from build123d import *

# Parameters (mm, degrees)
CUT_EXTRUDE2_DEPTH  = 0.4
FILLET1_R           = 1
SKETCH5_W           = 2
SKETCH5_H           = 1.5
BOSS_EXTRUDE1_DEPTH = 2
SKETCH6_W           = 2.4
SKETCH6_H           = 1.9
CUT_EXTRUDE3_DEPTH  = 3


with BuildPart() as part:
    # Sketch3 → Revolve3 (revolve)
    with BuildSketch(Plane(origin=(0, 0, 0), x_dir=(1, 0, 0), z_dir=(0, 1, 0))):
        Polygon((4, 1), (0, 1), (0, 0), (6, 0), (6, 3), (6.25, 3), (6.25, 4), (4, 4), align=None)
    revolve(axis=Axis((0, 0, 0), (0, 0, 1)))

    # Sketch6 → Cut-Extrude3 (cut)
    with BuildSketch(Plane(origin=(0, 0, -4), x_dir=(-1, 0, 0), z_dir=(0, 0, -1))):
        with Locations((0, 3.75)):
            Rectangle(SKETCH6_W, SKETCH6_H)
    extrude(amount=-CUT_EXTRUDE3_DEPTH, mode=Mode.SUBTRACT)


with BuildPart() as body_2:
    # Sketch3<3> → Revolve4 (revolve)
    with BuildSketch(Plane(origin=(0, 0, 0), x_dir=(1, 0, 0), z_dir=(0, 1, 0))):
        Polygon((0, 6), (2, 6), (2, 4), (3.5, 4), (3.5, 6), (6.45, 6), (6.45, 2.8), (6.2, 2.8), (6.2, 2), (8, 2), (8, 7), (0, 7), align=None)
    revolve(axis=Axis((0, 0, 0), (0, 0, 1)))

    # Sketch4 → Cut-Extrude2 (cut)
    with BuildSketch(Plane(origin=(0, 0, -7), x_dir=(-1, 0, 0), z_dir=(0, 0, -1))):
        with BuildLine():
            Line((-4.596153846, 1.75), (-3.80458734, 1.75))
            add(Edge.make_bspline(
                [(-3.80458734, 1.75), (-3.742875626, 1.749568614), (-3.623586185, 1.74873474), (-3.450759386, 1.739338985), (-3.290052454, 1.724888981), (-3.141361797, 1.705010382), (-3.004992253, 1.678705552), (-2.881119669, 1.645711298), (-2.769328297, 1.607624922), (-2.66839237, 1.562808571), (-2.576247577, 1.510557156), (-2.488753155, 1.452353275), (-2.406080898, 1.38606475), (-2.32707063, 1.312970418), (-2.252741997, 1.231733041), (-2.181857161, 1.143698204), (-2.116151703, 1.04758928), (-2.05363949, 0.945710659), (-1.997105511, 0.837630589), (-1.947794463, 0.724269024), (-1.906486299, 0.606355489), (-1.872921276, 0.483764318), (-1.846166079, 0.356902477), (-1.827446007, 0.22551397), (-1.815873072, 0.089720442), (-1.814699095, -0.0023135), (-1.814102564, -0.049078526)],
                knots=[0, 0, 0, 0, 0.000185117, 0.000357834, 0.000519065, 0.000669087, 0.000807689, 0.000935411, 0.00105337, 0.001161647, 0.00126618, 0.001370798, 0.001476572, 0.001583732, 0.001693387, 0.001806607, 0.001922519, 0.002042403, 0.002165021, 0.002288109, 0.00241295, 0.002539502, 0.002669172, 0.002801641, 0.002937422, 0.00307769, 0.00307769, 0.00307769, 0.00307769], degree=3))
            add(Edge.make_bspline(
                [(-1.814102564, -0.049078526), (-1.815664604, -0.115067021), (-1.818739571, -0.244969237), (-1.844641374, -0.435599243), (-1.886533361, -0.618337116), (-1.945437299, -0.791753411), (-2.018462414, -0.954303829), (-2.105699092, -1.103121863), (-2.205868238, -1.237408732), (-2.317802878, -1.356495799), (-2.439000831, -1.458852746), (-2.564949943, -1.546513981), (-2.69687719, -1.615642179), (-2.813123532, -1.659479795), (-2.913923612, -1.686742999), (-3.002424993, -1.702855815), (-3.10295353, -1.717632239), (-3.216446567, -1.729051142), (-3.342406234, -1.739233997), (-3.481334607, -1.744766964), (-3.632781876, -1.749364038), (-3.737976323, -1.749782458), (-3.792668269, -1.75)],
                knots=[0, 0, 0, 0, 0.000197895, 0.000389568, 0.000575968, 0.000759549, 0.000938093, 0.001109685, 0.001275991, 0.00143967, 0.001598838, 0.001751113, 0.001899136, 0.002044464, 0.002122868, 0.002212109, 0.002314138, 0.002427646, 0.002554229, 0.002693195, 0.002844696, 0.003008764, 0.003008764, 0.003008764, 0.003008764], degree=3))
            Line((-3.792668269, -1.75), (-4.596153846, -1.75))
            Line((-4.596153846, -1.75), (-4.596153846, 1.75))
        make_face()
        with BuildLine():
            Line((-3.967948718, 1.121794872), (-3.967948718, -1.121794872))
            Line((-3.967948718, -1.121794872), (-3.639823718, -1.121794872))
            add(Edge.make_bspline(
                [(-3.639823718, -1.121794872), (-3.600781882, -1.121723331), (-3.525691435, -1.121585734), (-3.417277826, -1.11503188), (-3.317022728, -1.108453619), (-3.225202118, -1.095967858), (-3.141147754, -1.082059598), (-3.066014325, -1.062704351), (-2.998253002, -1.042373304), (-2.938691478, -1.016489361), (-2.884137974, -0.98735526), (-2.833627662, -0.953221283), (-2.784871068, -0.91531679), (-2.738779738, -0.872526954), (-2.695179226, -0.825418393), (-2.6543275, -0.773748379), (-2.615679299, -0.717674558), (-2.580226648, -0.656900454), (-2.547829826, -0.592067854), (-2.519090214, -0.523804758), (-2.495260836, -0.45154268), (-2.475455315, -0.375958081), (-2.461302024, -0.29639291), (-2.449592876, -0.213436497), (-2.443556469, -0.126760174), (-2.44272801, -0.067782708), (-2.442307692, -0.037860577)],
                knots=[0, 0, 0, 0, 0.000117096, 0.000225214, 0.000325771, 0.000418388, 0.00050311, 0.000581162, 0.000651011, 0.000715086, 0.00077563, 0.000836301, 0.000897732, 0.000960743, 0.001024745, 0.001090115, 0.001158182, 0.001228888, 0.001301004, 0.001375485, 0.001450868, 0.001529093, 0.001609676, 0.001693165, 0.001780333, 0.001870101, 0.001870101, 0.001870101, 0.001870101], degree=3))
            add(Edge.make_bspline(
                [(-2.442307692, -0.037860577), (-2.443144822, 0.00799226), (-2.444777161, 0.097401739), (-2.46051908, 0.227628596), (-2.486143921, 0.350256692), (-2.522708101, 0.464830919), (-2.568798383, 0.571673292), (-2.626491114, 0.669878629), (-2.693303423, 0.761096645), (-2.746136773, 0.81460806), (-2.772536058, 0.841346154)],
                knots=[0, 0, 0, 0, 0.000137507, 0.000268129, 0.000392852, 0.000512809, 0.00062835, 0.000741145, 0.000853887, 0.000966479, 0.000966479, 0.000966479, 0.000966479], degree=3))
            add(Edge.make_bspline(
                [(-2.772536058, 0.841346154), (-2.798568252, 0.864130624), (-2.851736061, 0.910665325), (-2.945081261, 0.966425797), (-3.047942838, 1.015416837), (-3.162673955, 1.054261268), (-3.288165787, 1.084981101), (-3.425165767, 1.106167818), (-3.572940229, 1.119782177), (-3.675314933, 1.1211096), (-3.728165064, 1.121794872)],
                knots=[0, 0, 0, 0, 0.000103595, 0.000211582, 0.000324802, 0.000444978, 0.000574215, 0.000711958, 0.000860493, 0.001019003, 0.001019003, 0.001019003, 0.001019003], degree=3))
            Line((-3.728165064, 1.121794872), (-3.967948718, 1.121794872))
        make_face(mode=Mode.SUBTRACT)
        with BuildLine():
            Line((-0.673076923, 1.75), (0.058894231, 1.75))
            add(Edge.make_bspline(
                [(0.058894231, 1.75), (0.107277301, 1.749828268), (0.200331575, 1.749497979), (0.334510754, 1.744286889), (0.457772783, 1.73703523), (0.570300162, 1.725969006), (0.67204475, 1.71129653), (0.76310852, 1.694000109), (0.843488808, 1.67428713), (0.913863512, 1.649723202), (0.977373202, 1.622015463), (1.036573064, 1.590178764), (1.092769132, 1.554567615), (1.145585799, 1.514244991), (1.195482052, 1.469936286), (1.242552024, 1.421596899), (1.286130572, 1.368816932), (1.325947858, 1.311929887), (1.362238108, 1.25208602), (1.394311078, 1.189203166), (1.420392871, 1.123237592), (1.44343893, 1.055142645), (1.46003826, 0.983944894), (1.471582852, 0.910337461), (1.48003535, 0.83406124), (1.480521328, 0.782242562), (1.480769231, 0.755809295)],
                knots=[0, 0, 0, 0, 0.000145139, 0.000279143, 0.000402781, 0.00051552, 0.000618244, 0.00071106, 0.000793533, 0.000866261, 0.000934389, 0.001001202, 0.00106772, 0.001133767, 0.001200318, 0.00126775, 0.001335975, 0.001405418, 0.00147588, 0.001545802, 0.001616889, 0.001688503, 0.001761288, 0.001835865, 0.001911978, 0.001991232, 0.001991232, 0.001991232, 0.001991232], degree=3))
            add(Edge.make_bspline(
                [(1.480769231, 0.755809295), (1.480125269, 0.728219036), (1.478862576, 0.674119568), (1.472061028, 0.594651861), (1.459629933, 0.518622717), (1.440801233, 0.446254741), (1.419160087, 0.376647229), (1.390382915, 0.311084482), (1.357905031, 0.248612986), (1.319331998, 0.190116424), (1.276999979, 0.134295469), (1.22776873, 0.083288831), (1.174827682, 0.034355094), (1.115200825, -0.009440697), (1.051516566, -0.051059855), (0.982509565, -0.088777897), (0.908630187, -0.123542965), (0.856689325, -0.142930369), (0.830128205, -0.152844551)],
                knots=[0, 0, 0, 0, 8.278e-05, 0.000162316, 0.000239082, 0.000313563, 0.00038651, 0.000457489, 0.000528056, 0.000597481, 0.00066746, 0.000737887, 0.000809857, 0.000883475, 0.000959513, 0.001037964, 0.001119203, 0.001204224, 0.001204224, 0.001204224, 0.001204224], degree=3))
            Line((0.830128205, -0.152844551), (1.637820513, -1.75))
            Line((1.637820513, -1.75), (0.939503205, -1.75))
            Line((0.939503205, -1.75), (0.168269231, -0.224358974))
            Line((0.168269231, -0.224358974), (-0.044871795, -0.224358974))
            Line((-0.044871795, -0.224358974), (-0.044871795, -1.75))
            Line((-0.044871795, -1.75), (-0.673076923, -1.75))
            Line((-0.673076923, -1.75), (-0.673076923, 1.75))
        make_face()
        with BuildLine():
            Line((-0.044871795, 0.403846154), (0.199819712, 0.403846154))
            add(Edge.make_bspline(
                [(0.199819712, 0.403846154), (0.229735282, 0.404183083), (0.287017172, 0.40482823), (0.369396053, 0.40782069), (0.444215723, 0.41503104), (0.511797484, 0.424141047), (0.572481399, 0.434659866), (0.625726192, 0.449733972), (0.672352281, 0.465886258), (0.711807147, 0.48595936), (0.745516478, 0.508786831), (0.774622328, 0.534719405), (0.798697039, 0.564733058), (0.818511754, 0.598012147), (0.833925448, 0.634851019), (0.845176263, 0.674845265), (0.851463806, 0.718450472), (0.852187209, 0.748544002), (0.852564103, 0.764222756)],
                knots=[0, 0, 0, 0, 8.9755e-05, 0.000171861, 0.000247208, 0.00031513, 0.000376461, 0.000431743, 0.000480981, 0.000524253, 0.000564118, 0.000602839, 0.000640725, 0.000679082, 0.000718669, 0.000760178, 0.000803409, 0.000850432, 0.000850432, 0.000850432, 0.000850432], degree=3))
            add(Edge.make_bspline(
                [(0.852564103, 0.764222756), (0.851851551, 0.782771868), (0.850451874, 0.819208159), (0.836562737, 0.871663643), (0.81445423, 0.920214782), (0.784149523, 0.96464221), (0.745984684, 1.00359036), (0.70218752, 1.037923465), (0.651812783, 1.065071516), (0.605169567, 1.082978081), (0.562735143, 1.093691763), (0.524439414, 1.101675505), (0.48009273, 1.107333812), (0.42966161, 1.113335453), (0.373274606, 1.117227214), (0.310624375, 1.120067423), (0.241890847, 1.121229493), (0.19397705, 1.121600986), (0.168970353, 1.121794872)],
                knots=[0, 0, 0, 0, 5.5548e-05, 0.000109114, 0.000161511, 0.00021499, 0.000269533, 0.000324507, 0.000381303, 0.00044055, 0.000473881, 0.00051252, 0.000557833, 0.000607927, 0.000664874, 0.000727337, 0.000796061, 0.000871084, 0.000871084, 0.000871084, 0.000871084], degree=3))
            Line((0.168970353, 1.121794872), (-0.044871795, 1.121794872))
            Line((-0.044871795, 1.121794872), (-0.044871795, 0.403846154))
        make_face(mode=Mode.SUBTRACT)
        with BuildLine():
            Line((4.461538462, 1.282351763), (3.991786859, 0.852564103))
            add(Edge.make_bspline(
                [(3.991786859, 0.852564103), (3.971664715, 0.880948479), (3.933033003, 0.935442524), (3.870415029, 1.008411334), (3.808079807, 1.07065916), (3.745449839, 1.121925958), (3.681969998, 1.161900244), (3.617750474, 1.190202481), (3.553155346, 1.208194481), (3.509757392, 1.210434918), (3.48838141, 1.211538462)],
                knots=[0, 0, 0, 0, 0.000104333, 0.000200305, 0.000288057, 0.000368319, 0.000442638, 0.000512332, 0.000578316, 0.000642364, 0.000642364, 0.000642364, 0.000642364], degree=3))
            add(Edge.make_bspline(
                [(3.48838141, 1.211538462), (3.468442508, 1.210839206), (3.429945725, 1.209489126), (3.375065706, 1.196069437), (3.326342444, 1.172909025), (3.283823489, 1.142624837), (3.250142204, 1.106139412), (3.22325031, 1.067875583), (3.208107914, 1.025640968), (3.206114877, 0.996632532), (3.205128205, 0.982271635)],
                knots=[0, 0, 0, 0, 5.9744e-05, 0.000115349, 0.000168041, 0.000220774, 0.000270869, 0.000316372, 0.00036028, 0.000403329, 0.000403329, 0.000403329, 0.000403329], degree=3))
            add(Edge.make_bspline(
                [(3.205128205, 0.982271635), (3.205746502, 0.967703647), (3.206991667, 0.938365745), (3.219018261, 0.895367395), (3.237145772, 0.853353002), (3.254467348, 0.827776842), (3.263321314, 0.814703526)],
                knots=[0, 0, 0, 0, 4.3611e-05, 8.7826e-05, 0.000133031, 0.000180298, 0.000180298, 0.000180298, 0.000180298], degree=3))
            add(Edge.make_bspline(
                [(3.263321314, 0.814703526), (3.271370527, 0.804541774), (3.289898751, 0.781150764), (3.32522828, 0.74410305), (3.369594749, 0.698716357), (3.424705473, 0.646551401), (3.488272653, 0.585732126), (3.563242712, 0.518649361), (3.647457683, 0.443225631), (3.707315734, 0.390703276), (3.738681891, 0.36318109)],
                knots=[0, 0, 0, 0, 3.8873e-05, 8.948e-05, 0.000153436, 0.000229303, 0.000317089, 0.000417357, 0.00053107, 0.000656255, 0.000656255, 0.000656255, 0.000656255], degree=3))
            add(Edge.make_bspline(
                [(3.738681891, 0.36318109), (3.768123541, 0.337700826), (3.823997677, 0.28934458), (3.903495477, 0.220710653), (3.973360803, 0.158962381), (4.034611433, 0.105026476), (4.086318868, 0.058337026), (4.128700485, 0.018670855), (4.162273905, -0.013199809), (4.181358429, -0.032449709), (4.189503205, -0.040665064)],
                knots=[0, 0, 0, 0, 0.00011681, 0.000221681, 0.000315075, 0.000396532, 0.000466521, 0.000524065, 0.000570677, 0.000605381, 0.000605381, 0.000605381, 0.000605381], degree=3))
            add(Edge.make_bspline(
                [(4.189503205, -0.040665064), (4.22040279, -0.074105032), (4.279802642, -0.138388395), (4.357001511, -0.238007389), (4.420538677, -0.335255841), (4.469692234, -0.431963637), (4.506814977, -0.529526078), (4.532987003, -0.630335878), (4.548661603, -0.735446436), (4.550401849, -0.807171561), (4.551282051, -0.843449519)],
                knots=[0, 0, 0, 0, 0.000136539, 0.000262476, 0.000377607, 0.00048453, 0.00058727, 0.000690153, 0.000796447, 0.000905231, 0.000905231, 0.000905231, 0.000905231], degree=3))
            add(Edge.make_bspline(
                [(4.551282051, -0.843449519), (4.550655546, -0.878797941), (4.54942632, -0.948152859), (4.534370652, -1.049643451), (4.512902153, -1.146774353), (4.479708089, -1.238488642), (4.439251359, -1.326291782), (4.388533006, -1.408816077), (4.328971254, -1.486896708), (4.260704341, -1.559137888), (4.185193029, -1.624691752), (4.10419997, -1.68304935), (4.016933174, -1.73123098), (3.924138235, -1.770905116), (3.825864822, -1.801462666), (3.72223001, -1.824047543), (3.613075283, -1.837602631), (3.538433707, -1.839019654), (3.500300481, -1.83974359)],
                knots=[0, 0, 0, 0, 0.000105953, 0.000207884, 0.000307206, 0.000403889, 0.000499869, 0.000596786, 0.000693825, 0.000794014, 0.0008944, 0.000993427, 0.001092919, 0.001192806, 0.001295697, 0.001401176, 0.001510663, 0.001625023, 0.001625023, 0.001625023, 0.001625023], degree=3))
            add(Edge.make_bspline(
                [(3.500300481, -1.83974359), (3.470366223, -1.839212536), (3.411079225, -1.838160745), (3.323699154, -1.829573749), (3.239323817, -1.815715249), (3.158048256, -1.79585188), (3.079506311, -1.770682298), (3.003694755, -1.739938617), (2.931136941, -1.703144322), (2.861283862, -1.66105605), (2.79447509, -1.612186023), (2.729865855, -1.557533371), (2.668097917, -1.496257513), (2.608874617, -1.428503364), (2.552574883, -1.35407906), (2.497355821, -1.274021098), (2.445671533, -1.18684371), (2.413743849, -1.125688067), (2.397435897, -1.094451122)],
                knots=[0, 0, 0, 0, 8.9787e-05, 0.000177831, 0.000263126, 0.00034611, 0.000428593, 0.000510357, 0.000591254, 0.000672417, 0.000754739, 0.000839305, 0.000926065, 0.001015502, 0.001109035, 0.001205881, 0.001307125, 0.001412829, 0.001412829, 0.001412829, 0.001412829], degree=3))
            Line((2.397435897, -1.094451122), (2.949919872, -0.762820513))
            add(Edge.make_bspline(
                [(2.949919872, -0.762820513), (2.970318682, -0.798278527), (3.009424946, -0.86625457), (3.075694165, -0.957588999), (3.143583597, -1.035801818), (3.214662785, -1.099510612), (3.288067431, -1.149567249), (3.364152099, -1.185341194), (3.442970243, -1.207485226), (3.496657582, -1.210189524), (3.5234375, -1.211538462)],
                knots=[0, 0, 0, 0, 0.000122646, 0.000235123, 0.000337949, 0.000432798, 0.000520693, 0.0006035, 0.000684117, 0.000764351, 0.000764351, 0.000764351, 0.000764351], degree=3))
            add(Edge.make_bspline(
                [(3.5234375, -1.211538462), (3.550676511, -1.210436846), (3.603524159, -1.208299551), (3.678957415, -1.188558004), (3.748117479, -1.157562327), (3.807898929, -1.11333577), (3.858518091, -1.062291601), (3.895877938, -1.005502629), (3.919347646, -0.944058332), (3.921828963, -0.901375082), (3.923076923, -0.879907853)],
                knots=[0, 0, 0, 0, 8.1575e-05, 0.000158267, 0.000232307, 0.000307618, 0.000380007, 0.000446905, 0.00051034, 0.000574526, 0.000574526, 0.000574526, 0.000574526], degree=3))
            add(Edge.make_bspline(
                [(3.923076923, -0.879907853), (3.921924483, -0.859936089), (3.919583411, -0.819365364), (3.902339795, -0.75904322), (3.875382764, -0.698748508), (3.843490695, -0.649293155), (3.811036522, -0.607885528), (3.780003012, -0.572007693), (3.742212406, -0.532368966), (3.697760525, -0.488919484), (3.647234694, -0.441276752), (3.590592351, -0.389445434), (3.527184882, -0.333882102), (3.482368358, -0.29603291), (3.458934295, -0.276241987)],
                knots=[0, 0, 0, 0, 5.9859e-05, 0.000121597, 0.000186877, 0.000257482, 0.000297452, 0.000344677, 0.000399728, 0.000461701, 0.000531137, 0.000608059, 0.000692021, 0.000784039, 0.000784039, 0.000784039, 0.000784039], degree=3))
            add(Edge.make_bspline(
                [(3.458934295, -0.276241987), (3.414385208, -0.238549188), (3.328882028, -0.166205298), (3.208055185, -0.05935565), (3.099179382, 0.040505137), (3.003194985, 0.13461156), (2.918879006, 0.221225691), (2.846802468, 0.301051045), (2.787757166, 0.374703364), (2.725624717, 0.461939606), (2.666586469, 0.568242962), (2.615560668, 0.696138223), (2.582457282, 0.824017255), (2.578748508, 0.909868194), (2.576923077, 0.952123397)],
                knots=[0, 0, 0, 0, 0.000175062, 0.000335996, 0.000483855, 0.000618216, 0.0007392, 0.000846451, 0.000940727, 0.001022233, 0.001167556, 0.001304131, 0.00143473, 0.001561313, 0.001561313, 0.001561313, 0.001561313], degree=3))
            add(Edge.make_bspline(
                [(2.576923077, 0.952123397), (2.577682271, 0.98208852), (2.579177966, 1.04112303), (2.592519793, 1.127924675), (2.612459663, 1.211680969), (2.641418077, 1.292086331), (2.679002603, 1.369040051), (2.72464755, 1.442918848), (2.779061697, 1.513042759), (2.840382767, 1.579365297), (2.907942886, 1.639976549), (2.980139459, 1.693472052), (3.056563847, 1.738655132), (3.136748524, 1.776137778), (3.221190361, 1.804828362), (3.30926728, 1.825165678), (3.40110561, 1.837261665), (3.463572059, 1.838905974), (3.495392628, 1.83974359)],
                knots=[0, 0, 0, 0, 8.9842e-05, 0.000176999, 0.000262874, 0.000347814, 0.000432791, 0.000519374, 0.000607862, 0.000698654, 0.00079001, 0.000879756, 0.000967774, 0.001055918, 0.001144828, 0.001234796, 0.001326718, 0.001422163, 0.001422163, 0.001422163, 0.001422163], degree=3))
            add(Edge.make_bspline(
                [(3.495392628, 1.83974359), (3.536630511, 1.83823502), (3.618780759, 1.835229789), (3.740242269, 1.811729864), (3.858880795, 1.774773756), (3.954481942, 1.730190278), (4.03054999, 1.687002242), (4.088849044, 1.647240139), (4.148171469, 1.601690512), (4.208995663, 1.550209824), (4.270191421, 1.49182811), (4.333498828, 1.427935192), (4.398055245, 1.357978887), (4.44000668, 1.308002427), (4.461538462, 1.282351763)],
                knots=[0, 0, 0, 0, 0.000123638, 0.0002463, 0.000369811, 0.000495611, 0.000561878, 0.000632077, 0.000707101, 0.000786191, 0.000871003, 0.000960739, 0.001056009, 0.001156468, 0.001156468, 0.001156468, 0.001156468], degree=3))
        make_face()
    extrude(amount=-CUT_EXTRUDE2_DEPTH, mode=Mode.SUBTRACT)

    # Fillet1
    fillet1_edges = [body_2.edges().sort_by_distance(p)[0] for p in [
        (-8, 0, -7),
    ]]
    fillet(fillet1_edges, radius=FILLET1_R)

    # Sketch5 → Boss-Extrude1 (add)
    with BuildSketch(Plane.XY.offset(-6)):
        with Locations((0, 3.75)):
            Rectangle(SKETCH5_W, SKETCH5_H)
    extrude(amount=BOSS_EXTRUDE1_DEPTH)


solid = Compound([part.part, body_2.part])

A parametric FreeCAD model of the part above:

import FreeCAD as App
import Part
import Sketcher

V = App.Vector
Q = App.Units.Quantity


def edges_at(feature, points):
    """Names of the edges that pass closest to the given points."""
    edges = feature.Shape.Edges
    near = lambda p: min(range(len(edges)), key=lambda i: edges[i].distToShape(Part.Vertex(*p))[0])
    return sorted({f"Edge{near(p) + 1}" for p in points})

doc = App.newDocument("Part")
body = doc.addObject("PartDesign::Body", "Body")

sketch1 = body.newObject("Sketcher::SketchObject", "Sketch")
sketch1.AttachmentSupport = (doc.getObject("XZ_Plane"), [""])
sketch1.MapMode = "FlatFace"
sketch1.addGeometry([
    Part.LineSegment(V(4, -1, 0), V(0, -1, 0)),
    Part.LineSegment(V(0, -1, 0), V(0, 0, 0)),
    Part.LineSegment(V(0, 0, 0), V(6, 0, 0)),
    Part.LineSegment(V(6, 0, 0), V(6, -3, 0)),
    Part.LineSegment(V(6, -3, 0), V(6.25, -3, 0)),
    Part.LineSegment(V(6.25, -3, 0), V(6.25, -4, 0)),
    Part.LineSegment(V(6.25, -4, 0), V(4, -4, 0)),
    Part.LineSegment(V(4, -4, 0), V(4, -1, 0)),
], False)
sketch1.addConstraint([
    Sketcher.Constraint("Coincident", 0, 2, 1, 1),
    Sketcher.Constraint("Coincident", 1, 2, 2, 1),
    Sketcher.Constraint("Coincident", 2, 2, 3, 1),
    Sketcher.Constraint("Coincident", 3, 2, 4, 1),
    Sketcher.Constraint("Coincident", 4, 2, 5, 1),
    Sketcher.Constraint("Coincident", 5, 2, 6, 1),
    Sketcher.Constraint("Coincident", 6, 2, 7, 1),
    Sketcher.Constraint("Coincident", 7, 2, 0, 1),
    Sketcher.Constraint("Horizontal", 0),
    Sketcher.Constraint("Vertical", 1),
    Sketcher.Constraint("Horizontal", 2),
    Sketcher.Constraint("Vertical", 3),
    Sketcher.Constraint("Horizontal", 4),
    Sketcher.Constraint("Vertical", 5),
    Sketcher.Constraint("Horizontal", 6),
    Sketcher.Constraint("Vertical", 7),
    Sketcher.Constraint("Coincident", 1, 2, -1, 1),
    Sketcher.Constraint("Equal", 1, 5),
    Sketcher.Constraint("DistanceX", 0, 2, 0, 1, Q("4 mm")),
    Sketcher.Constraint("DistanceX", 2, 1, 2, 2, Q("6 mm")),
    Sketcher.Constraint("DistanceY", 1, 1, 1, 2, Q("1 mm")),
    Sketcher.Constraint("DistanceY", 3, 2, 3, 1, Q("3 mm")),
    Sketcher.Constraint("DistanceX", 4, 1, 4, 2, Q("0.25 mm")),
])
revolution = body.newObject("PartDesign::Revolution", "Revolution")
revolution.Profile = sketch1
revolution.ReferenceAxis = (sketch1, ["V_Axis"])
revolution.Angle = 360

sketch2 = body.newObject("Sketcher::SketchObject", "Sketch001")
sketch2.AttachmentSupport = (doc.getObject("XY_Plane"), [""])
sketch2.MapMode = "FlatFace"
sketch2.AttachmentOffset = App.Placement(V(0, 0, -4), App.Rotation())
sketch2.addGeometry([
    Part.LineSegment(V(1.2, 4.7, 0), V(1.2, 2.8, 0)),
    Part.LineSegment(V(1.2, 2.8, 0), V(-1.2, 2.8, 0)),
    Part.LineSegment(V(-1.2, 2.8, 0), V(-1.2, 4.7, 0)),
    Part.LineSegment(V(-1.2, 4.7, 0), V(1.2, 4.7, 0)),
], False)
sketch2.addConstraint([
    Sketcher.Constraint("Coincident", 0, 2, 1, 1),
    Sketcher.Constraint("Coincident", 1, 2, 2, 1),
    Sketcher.Constraint("Coincident", 2, 2, 3, 1),
    Sketcher.Constraint("Coincident", 3, 2, 0, 1),
    Sketcher.Constraint("Vertical", 0),
    Sketcher.Constraint("Horizontal", 1),
    Sketcher.Constraint("Vertical", 2),
    Sketcher.Constraint("Horizontal", 3),
    Sketcher.Constraint("DistanceX", 1, 2, 1, 1, Q("2.4 mm")),
    Sketcher.Constraint("DistanceY", 0, 2, 0, 1, Q("1.9 mm")),
    Sketcher.Constraint("DistanceX", -1, 1, 0, 2, Q("1.2 mm")),
    Sketcher.Constraint("DistanceY", -1, 1, 0, 2, Q("2.8 mm")),
])
pocket1 = body.newObject("PartDesign::Pocket", "Pocket")
pocket1.Profile = sketch2
pocket1.Length = 3
pocket1.Reversed = True
body2 = doc.addObject("PartDesign::Body", "Body001")

sketch3 = body2.newObject("Sketcher::SketchObject", "Sketch002")
sketch3.AttachmentSupport = (doc.getObject("XZ_Plane001"), [""])
sketch3.MapMode = "FlatFace"
sketch3.addGeometry([
    Part.LineSegment(V(0, -6, 0), V(2, -6, 0)),
    Part.LineSegment(V(2, -6, 0), V(2, -4, 0)),
    Part.LineSegment(V(2, -4, 0), V(3.5, -4, 0)),
    Part.LineSegment(V(3.5, -4, 0), V(3.5, -6, 0)),
    Part.LineSegment(V(3.5, -6, 0), V(6.45, -6, 0)),
    Part.LineSegment(V(6.45, -6, 0), V(6.45, -2.8, 0)),
    Part.LineSegment(V(6.45, -2.8, 0), V(6.2, -2.8, 0)),
    Part.LineSegment(V(6.2, -2.8, 0), V(6.2, -2, 0)),
    Part.LineSegment(V(6.2, -2, 0), V(8, -2, 0)),
    Part.LineSegment(V(8, -2, 0), V(8, -7, 0)),
    Part.LineSegment(V(8, -7, 0), V(0, -7, 0)),
    Part.LineSegment(V(0, -7, 0), V(0, -6, 0)),
], False)
sketch3.addConstraint([
    Sketcher.Constraint("Coincident", 0, 2, 1, 1),
    Sketcher.Constraint("Coincident", 1, 2, 2, 1),
    Sketcher.Constraint("Coincident", 2, 2, 3, 1),
    Sketcher.Constraint("Coincident", 3, 2, 4, 1),
    Sketcher.Constraint("Coincident", 4, 2, 5, 1),
    Sketcher.Constraint("Coincident", 5, 2, 6, 1),
    Sketcher.Constraint("Coincident", 6, 2, 7, 1),
    Sketcher.Constraint("Coincident", 7, 2, 8, 1),
    Sketcher.Constraint("Coincident", 8, 2, 9, 1),
    Sketcher.Constraint("Coincident", 9, 2, 10, 1),
    Sketcher.Constraint("Coincident", 10, 2, 11, 1),
    Sketcher.Constraint("Coincident", 11, 2, 0, 1),
    Sketcher.Constraint("Horizontal", 0),
    Sketcher.Constraint("Vertical", 1),
    Sketcher.Constraint("Horizontal", 2),
    Sketcher.Constraint("Vertical", 3),
    Sketcher.Constraint("Horizontal", 4),
    Sketcher.Constraint("Vertical", 5),
    Sketcher.Constraint("Horizontal", 6),
    Sketcher.Constraint("Vertical", 7),
    Sketcher.Constraint("Horizontal", 8),
    Sketcher.Constraint("Vertical", 9),
    Sketcher.Constraint("Horizontal", 10),
    Sketcher.Constraint("Vertical", 11),
    Sketcher.Constraint("PointOnObject", 10, 2, -2),
    Sketcher.Constraint("Horizontal", 0, 2, 3, 2),
    Sketcher.Constraint("Equal", 0, 1),
    Sketcher.Constraint("DistanceX", 0, 1, 0, 2, Q("2 mm")),
    Sketcher.Constraint("DistanceX", 10, 2, 10, 1, Q("8 mm")),
    Sketcher.Constraint("DistanceY", 9, 2, 9, 1, Q("5 mm")),
    Sketcher.Constraint("DistanceY", 11, 1, 11, 2, Q("1 mm")),
    Sketcher.Constraint("DistanceX", 2, 1, 2, 2, Q("1.5 mm")),
    Sketcher.Constraint("DistanceX", 8, 1, 8, 2, Q("1.8 mm")),
    Sketcher.Constraint("DistanceY", 5, 1, 5, 2, Q("3.2 mm")),
    Sketcher.Constraint("DistanceY", 0, 2, -1, 1, Q("6 mm")),
    Sketcher.Constraint("DistanceX", 4, 1, 4, 2, Q("2.95 mm")),
])
revolution2 = body2.newObject("PartDesign::Revolution", "Revolution001")
revolution2.Profile = sketch3
revolution2.ReferenceAxis = (sketch3, ["V_Axis"])
revolution2.Angle = 360

sketch4 = body2.newObject("Sketcher::SketchObject", "Sketch003")
sketch4.AttachmentSupport = (doc.getObject("XY_Plane001"), [""])
sketch4.MapMode = "FlatFace"
sketch4.AttachmentOffset = App.Placement(V(0, 0, -7), App.Rotation())
sketch4.addGeometry([
    Part.LineSegment(V(3.804587, 1.75, 0), V(4.596154, 1.75, 0)),
    Part.LineSegment(V(4.596154, 1.75, 0), V(4.596154, -1.75, 0)),
    Part.LineSegment(V(4.596154, -1.75, 0), V(3.792668, -1.75, 0)),
    Part.BSplineCurve([V(1.814103, -0.049079, 0), V(1.815665, -0.115067, 0), V(1.81874, -0.244969, 0), V(1.844641, -0.435599, 0), V(1.886533, -0.618337, 0), V(1.945437, -0.791753, 0), V(2.018462, -0.954304, 0), V(2.105699, -1.103122, 0), V(2.205868, -1.237409, 0), V(2.317803, -1.356496, 0), V(2.439001, -1.458853, 0), V(2.56495, -1.546514, 0), V(2.696877, -1.615642, 0), V(2.813124, -1.65948, 0), V(2.913924, -1.686743, 0), V(3.002425, -1.702856, 0), V(3.102954, -1.717632, 0), V(3.216447, -1.729051, 0), V(3.342406, -1.739234, 0), V(3.481335, -1.744767, 0), V(3.632782, -1.749364, 0), V(3.737976, -1.749782, 0), V(3.792668, -1.75, 0)], [4, 1, 1, 1, 1, 1, 1, 1, 1, 1, 1, 1, 1, 1, 1, 1, 1, 1, 1, 1, 4], [0, 0.000197895, 0.000389568, 0.000575968, 0.000759549, 0.000938093, 0.001109685, 0.001275991, 0.00143967, 0.001598838, 0.001751113, 0.001899136, 0.002044464, 0.002122868, 0.002212109, 0.002314138, 0.002427646, 0.002554229, 0.002693195, 0.002844696, 0.003008764], False, 3, [1, 1, 1, 1, 1, 1, 1, 1, 1, 1, 1, 1, 1, 1, 1, 1, 1, 1, 1, 1, 1, 1, 1], False),
    Part.BSplineCurve([V(3.804587, 1.75, 0), V(3.742876, 1.749569, 0), V(3.623586, 1.748735, 0), V(3.450759, 1.739339, 0), V(3.290052, 1.724889, 0), V(3.141362, 1.70501, 0), V(3.004992, 1.678706, 0), V(2.88112, 1.645711, 0), V(2.769328, 1.607625, 0), V(2.668392, 1.562809, 0), V(2.576248, 1.510557, 0), V(2.488753, 1.452353, 0), V(2.406081, 1.386065, 0), V(2.327071, 1.31297, 0), V(2.252742, 1.231733, 0), V(2.181857, 1.143698, 0), V(2.116152, 1.047589, 0), V(2.053639, 0.945711, 0), V(1.997106, 0.837631, 0), V(1.947794, 0.724269, 0), V(1.906486, 0.606355, 0), V(1.872921, 0.483764, 0), V(1.846166, 0.356902, 0), V(1.827446, 0.225514, 0), V(1.815873, 0.08972, 0), V(1.814699, -0.002314, 0), V(1.814103, -0.049079, 0)], [4, 1, 1, 1, 1, 1, 1, 1, 1, 1, 1, 1, 1, 1, 1, 1, 1, 1, 1, 1, 1, 1, 1, 1, 4], [0, 0.000185117, 0.000357834, 0.000519065, 0.000669087, 0.000807689, 0.000935411, 0.00105337, 0.001161647, 0.00126618, 0.001370798, 0.001476572, 0.001583732, 0.001693387, 0.001806607, 0.001922519, 0.002042403, 0.002165021, 0.002288109, 0.00241295, 0.002539502, 0.002669172, 0.002801641, 0.002937422, 0.00307769], False, 3, [1, 1, 1, 1, 1, 1, 1, 1, 1, 1, 1, 1, 1, 1, 1, 1, 1, 1, 1, 1, 1, 1, 1, 1, 1, 1, 1], False),
    Part.LineSegment(V(3.967949, 1.121795, 0), V(3.728165, 1.121795, 0)),
    Part.BSplineCurve([V(2.772536, 0.841346, 0), V(2.798568, 0.864131, 0), V(2.851736, 0.910665, 0), V(2.945081, 0.966426, 0), V(3.047943, 1.015417, 0), V(3.162674, 1.054261, 0), V(3.288166, 1.084981, 0), V(3.425166, 1.106168, 0), V(3.57294, 1.119782, 0), V(3.675315, 1.12111, 0), V(3.728165, 1.121795, 0)], [4, 1, 1, 1, 1, 1, 1, 1, 4], [0, 0.000103595, 0.000211582, 0.000324802, 0.000444978, 0.000574215, 0.000711958, 0.000860493, 0.001019003], False, 3, [1, 1, 1, 1, 1, 1, 1, 1, 1, 1, 1], False),
    Part.BSplineCurve([V(2.442308, -0.037861, 0), V(2.443145, 0.007992, 0), V(2.444777, 0.097402, 0), V(2.460519, 0.227629, 0), V(2.486144, 0.350257, 0), V(2.522708, 0.464831, 0), V(2.568798, 0.571673, 0), V(2.626491, 0.669879, 0), V(2.693303, 0.761097, 0), V(2.746137, 0.814608, 0), V(2.772536, 0.841346, 0)], [4, 1, 1, 1, 1, 1, 1, 1, 4], [0, 0.000137507, 0.000268129, 0.000392852, 0.000512809, 0.00062835, 0.000741145, 0.000853887, 0.000966479], False, 3, [1, 1, 1, 1, 1, 1, 1, 1, 1, 1, 1], False),
    Part.BSplineCurve([V(3.639824, -1.121795, 0), V(3.600782, -1.121723, 0), V(3.525691, -1.121586, 0), V(3.417278, -1.115032, 0), V(3.317023, -1.108454, 0), V(3.225202, -1.095968, 0), V(3.141148, -1.08206, 0), V(3.066014, -1.062704, 0), V(2.998253, -1.042373, 0), V(2.938691, -1.016489, 0), V(2.884138, -0.987355, 0), V(2.833628, -0.953221, 0), V(2.784871, -0.915317, 0), V(2.73878, -0.872527, 0), V(2.695179, -0.825418, 0), V(2.654327, -0.773748, 0), V(2.615679, -0.717675, 0), V(2.580227, -0.6569, 0), V(2.54783, -0.592068, 0), V(2.51909, -0.523805, 0), V(2.495261, -0.451543, 0), V(2.475455, -0.375958, 0), V(2.461302, -0.296393, 0), V(2.449593, -0.213436, 0), V(2.443556, -0.12676, 0), V(2.442728, -0.067783, 0), V(2.442308, -0.037861, 0)], [4, 1, 1, 1, 1, 1, 1, 1, 1, 1, 1, 1, 1, 1, 1, 1, 1, 1, 1, 1, 1, 1, 1, 1, 4], [0, 0.000117096, 0.000225214, 0.000325771, 0.000418388, 0.00050311, 0.000581162, 0.000651011, 0.000715086, 0.00077563, 0.000836301, 0.000897732, 0.000960743, 0.001024745, 0.001090115, 0.001158182, 0.001228888, 0.001301004, 0.001375485, 0.001450868, 0.001529093, 0.001609676, 0.001693165, 0.001780333, 0.001870101], False, 3, [1, 1, 1, 1, 1, 1, 1, 1, 1, 1, 1, 1, 1, 1, 1, 1, 1, 1, 1, 1, 1, 1, 1, 1, 1, 1, 1], False),
    Part.LineSegment(V(3.639824, -1.121795, 0), V(3.967949, -1.121795, 0)),
    Part.LineSegment(V(3.967949, -1.121795, 0), V(3.967949, 1.121795, 0)),
    Part.LineSegment(V(-0.058894, 1.75, 0), V(0.673077, 1.75, 0)),
    Part.LineSegment(V(0.673077, 1.75, 0), V(0.673077, -1.75, 0)),
    Part.LineSegment(V(0.673077, -1.75, 0), V(0.044872, -1.75, 0)),
    Part.LineSegment(V(0.044872, -1.75, 0), V(0.044872, -0.224359, 0)),
    Part.LineSegment(V(0.044872, -0.224359, 0), V(-0.168269, -0.224359, 0)),
    Part.LineSegment(V(-0.168269, -0.224359, 0), V(-0.939503, -1.75, 0)),
    Part.LineSegment(V(-0.939503, -1.75, 0), V(-1.637821, -1.75, 0)),
    Part.LineSegment(V(-1.637821, -1.75, 0), V(-0.830128, -0.152845, 0)),
    Part.BSplineCurve([V(-1.480769, 0.755809, 0), V(-1.480125, 0.728219, 0), V(-1.478863, 0.67412, 0), V(-1.472061, 0.594652, 0), V(-1.45963, 0.518623, 0), V(-1.440801, 0.446255, 0), V(-1.41916, 0.376647, 0), V(-1.390383, 0.311084, 0), V(-1.357905, 0.248613, 0), V(-1.319332, 0.190116, 0), V(-1.277, 0.134295, 0), V(-1.227769, 0.083289, 0), V(-1.174828, 0.034355, 0), V(-1.115201, -0.009441, 0), V(-1.051517, -0.05106, 0), V(-0.98251, -0.088778, 0), V(-0.90863, -0.123543, 0), V(-0.856689, -0.14293, 0), V(-0.830128, -0.152845, 0)], [4, 1, 1, 1, 1, 1, 1, 1, 1, 1, 1, 1, 1, 1, 1, 1, 4], [0, 0.00008278, 0.000162316, 0.000239082, 0.000313563, 0.00038651, 0.000457489, 0.000528056, 0.000597481, 0.00066746, 0.000737887, 0.000809857, 0.000883475, 0.000959513, 0.001037964, 0.001119203, 0.001204224], False, 3, [1, 1, 1, 1, 1, 1, 1, 1, 1, 1, 1, 1, 1, 1, 1, 1, 1, 1, 1], False),
    Part.BSplineCurve([V(-0.058894, 1.75, 0), V(-0.107277, 1.749828, 0), V(-0.200332, 1.749498, 0), V(-0.334511, 1.744287, 0), V(-0.457773, 1.737035, 0), V(-0.5703, 1.725969, 0), V(-0.672045, 1.711297, 0), V(-0.763109, 1.694, 0), V(-0.843489, 1.674287, 0), V(-0.913864, 1.649723, 0), V(-0.977373, 1.622015, 0), V(-1.036573, 1.590179, 0), V(-1.092769, 1.554568, 0), V(-1.145586, 1.514245, 0), V(-1.195482, 1.469936, 0), V(-1.242552, 1.421597, 0), V(-1.286131, 1.368817, 0), V(-1.325948, 1.31193, 0), V(-1.362238, 1.252086, 0), V(-1.394311, 1.189203, 0), V(-1.420393, 1.123238, 0), V(-1.443439, 1.055143, 0), V(-1.460038, 0.983945, 0), V(-1.471583, 0.910337, 0), V(-1.480035, 0.834061, 0), V(-1.480521, 0.782243, 0), V(-1.480769, 0.755809, 0)], [4, 1, 1, 1, 1, 1, 1, 1, 1, 1, 1, 1, 1, 1, 1, 1, 1, 1, 1, 1, 1, 1, 1, 1, 4], [0, 0.000145139, 0.000279143, 0.000402781, 0.00051552, 0.000618244, 0.00071106, 0.000793533, 0.000866261, 0.000934389, 0.001001202, 0.00106772, 0.001133767, 0.001200318, 0.00126775, 0.001335975, 0.001405418, 0.00147588, 0.001545802, 0.001616889, 0.001688503, 0.001761288, 0.001835865, 0.001911978, 0.001991232], False, 3, [1, 1, 1, 1, 1, 1, 1, 1, 1, 1, 1, 1, 1, 1, 1, 1, 1, 1, 1, 1, 1, 1, 1, 1, 1, 1, 1], False),
    Part.LineSegment(V(0.044872, 0.403846, 0), V(0.044872, 1.121795, 0)),
    Part.LineSegment(V(0.044872, 1.121795, 0), V(-0.16897, 1.121795, 0)),
    Part.BSplineCurve([V(-0.852564, 0.764223, 0), V(-0.851852, 0.782772, 0), V(-0.850452, 0.819208, 0), V(-0.836563, 0.871664, 0), V(-0.814454, 0.920215, 0), V(-0.78415, 0.964642, 0), V(-0.745985, 1.00359, 0), V(-0.702188, 1.037923, 0), V(-0.651813, 1.065072, 0), V(-0.60517, 1.082978, 0), V(-0.562735, 1.093692, 0), V(-0.524439, 1.101676, 0), V(-0.480093, 1.107334, 0), V(-0.429662, 1.113335, 0), V(-0.373275, 1.117227, 0), V(-0.310624, 1.120067, 0), V(-0.241891, 1.121229, 0), V(-0.193977, 1.121601, 0), V(-0.16897, 1.121795, 0)], [4, 1, 1, 1, 1, 1, 1, 1, 1, 1, 1, 1, 1, 1, 1, 1, 4], [0, 0.000055548, 0.000109114, 0.000161511, 0.00021499, 0.000269533, 0.000324507, 0.000381303, 0.00044055, 0.000473881, 0.00051252, 0.000557833, 0.000607927, 0.000664874, 0.000727337, 0.000796061, 0.000871084], False, 3, [1, 1, 1, 1, 1, 1, 1, 1, 1, 1, 1, 1, 1, 1, 1, 1, 1, 1, 1], False),
    Part.BSplineCurve([V(-0.19982, 0.403846, 0), V(-0.229735, 0.404183, 0), V(-0.287017, 0.404828, 0), V(-0.369396, 0.407821, 0), V(-0.444216, 0.415031, 0), V(-0.511797, 0.424141, 0), V(-0.572481, 0.43466, 0), V(-0.625726, 0.449734, 0), V(-0.672352, 0.465886, 0), V(-0.711807, 0.485959, 0), V(-0.745516, 0.508787, 0), V(-0.774622, 0.534719, 0), V(-0.798697, 0.564733, 0), V(-0.818512, 0.598012, 0), V(-0.833925, 0.634851, 0), V(-0.845176, 0.674845, 0), V(-0.851464, 0.71845, 0), V(-0.852187, 0.748544, 0), V(-0.852564, 0.764223, 0)], [4, 1, 1, 1, 1, 1, 1, 1, 1, 1, 1, 1, 1, 1, 1, 1, 4], [0, 0.000089755, 0.000171861, 0.000247208, 0.00031513, 0.000376461, 0.000431743, 0.000480981, 0.000524253, 0.000564118, 0.000602839, 0.000640725, 0.000679082, 0.000718669, 0.000760178, 0.000803409, 0.000850432], False, 3, [1, 1, 1, 1, 1, 1, 1, 1, 1, 1, 1, 1, 1, 1, 1, 1, 1, 1, 1], False),
    Part.LineSegment(V(-0.19982, 0.403846, 0), V(0.044872, 0.403846, 0)),
    Part.LineSegment(V(-3.991787, 0.852564, 0), V(-4.461538, 1.282352, 0)),
    Part.BSplineCurve([V(-3.495393, 1.839744, 0), V(-3.536631, 1.838235, 0), V(-3.618781, 1.83523, 0), V(-3.740242, 1.81173, 0), V(-3.858881, 1.774774, 0), V(-3.954482, 1.73019, 0), V(-4.03055, 1.687002, 0), V(-4.088849, 1.64724, 0), V(-4.148171, 1.601691, 0), V(-4.208996, 1.55021, 0), V(-4.270191, 1.491828, 0), V(-4.333499, 1.427935, 0), V(-4.398055, 1.357979, 0), V(-4.440007, 1.308002, 0), V(-4.461538, 1.282352, 0)], [4, 1, 1, 1, 1, 1, 1, 1, 1, 1, 1, 1, 4], [0, 0.000123638, 0.0002463, 0.000369811, 0.000495611, 0.000561878, 0.000632077, 0.000707101, 0.000786191, 0.000871003, 0.000960739, 0.001056009, 0.001156468], False, 3, [1, 1, 1, 1, 1, 1, 1, 1, 1, 1, 1, 1, 1, 1, 1], False),
    Part.BSplineCurve([V(-2.576923, 0.952123, 0), V(-2.577682, 0.982089, 0), V(-2.579178, 1.041123, 0), V(-2.59252, 1.127925, 0), V(-2.61246, 1.211681, 0), V(-2.641418, 1.292086, 0), V(-2.679003, 1.36904, 0), V(-2.724648, 1.442919, 0), V(-2.779062, 1.513043, 0), V(-2.840383, 1.579365, 0), V(-2.907943, 1.639977, 0), V(-2.980139, 1.693472, 0), V(-3.056564, 1.738655, 0), V(-3.136749, 1.776138, 0), V(-3.22119, 1.804828, 0), V(-3.309267, 1.825166, 0), V(-3.401106, 1.837262, 0), V(-3.463572, 1.838906, 0), V(-3.495393, 1.839744, 0)], [4, 1, 1, 1, 1, 1, 1, 1, 1, 1, 1, 1, 1, 1, 1, 1, 4], [0, 0.000089842, 0.000176999, 0.000262874, 0.000347814, 0.000432791, 0.000519374, 0.000607862, 0.000698654, 0.00079001, 0.000879756, 0.000967774, 0.001055918, 0.001144828, 0.001234796, 0.001326718, 0.001422163], False, 3, [1, 1, 1, 1, 1, 1, 1, 1, 1, 1, 1, 1, 1, 1, 1, 1, 1, 1, 1], False),
    Part.BSplineCurve([V(-3.458934, -0.276242, 0), V(-3.414385, -0.238549, 0), V(-3.328882, -0.166205, 0), V(-3.208055, -0.059356, 0), V(-3.099179, 0.040505, 0), V(-3.003195, 0.134612, 0), V(-2.918879, 0.221226, 0), V(-2.846802, 0.301051, 0), V(-2.787757, 0.374703, 0), V(-2.725625, 0.46194, 0), V(-2.666586, 0.568243, 0), V(-2.615561, 0.696138, 0), V(-2.582457, 0.824017, 0), V(-2.578749, 0.909868, 0), V(-2.576923, 0.952123, 0)], [4, 1, 1, 1, 1, 1, 1, 1, 1, 1, 1, 1, 4], [0, 0.000175062, 0.000335996, 0.000483855, 0.000618216, 0.0007392, 0.000846451, 0.000940727, 0.001022233, 0.001167556, 0.001304131, 0.00143473, 0.001561313], False, 3, [1, 1, 1, 1, 1, 1, 1, 1, 1, 1, 1, 1, 1, 1, 1], False),
    Part.BSplineCurve([V(-3.923077, -0.879908, 0), V(-3.921924, -0.859936, 0), V(-3.919583, -0.819365, 0), V(-3.90234, -0.759043, 0), V(-3.875383, -0.698749, 0), V(-3.843491, -0.649293, 0), V(-3.811037, -0.607886, 0), V(-3.780003, -0.572008, 0), V(-3.742212, -0.532369, 0), V(-3.697761, -0.488919, 0), V(-3.647235, -0.441277, 0), V(-3.590592, -0.389445, 0), V(-3.527185, -0.333882, 0), V(-3.482368, -0.296033, 0), V(-3.458934, -0.276242, 0)], [4, 1, 1, 1, 1, 1, 1, 1, 1, 1, 1, 1, 4], [0, 0.000059859, 0.000121597, 0.000186877, 0.000257482, 0.000297452, 0.000344677, 0.000399728, 0.000461701, 0.000531137, 0.000608059, 0.000692021, 0.000784039], False, 3, [1, 1, 1, 1, 1, 1, 1, 1, 1, 1, 1, 1, 1, 1, 1], False),
    Part.BSplineCurve([V(-3.523438, -1.211538, 0), V(-3.550677, -1.210437, 0), V(-3.603524, -1.2083, 0), V(-3.678957, -1.188558, 0), V(-3.748117, -1.157562, 0), V(-3.807899, -1.113336, 0), V(-3.858518, -1.062292, 0), V(-3.895878, -1.005503, 0), V(-3.919348, -0.944058, 0), V(-3.921829, -0.901375, 0), V(-3.923077, -0.879908, 0)], [4, 1, 1, 1, 1, 1, 1, 1, 4], [0, 0.000081575, 0.000158267, 0.000232307, 0.000307618, 0.000380007, 0.000446905, 0.00051034, 0.000574526], False, 3, [1, 1, 1, 1, 1, 1, 1, 1, 1, 1, 1], False),
    Part.BSplineCurve([V(-2.94992, -0.762821, 0), V(-2.970319, -0.798279, 0), V(-3.009425, -0.866255, 0), V(-3.075694, -0.957589, 0), V(-3.143584, -1.035802, 0), V(-3.214663, -1.099511, 0), V(-3.288067, -1.149567, 0), V(-3.364152, -1.185341, 0), V(-3.44297, -1.207485, 0), V(-3.496658, -1.21019, 0), V(-3.523438, -1.211538, 0)], [4, 1, 1, 1, 1, 1, 1, 1, 4], [0, 0.000122646, 0.000235123, 0.000337949, 0.000432798, 0.000520693, 0.0006035, 0.000684117, 0.000764351], False, 3, [1, 1, 1, 1, 1, 1, 1, 1, 1, 1, 1], False),
    Part.LineSegment(V(-2.94992, -0.762821, 0), V(-2.397436, -1.094451, 0)),
    Part.BSplineCurve([V(-3.5003, -1.839744, 0), V(-3.470366, -1.839213, 0), V(-3.411079, -1.838161, 0), V(-3.323699, -1.829574, 0), V(-3.239324, -1.815715, 0), V(-3.158048, -1.795852, 0), V(-3.079506, -1.770682, 0), V(-3.003695, -1.739939, 0), V(-2.931137, -1.703144, 0), V(-2.861284, -1.661056, 0), V(-2.794475, -1.612186, 0), V(-2.729866, -1.557533, 0), V(-2.668098, -1.496258, 0), V(-2.608875, -1.428503, 0), V(-2.552575, -1.354079, 0), V(-2.497356, -1.274021, 0), V(-2.445672, -1.186844, 0), V(-2.413744, -1.125688, 0), V(-2.397436, -1.094451, 0)], [4, 1, 1, 1, 1, 1, 1, 1, 1, 1, 1, 1, 1, 1, 1, 1, 4], [0, 0.000089787, 0.000177831, 0.000263126, 0.00034611, 0.000428593, 0.000510357, 0.000591254, 0.000672417, 0.000754739, 0.000839305, 0.000926065, 0.001015502, 0.001109035, 0.001205881, 0.001307125, 0.001412829], False, 3, [1, 1, 1, 1, 1, 1, 1, 1, 1, 1, 1, 1, 1, 1, 1, 1, 1, 1, 1], False),
    Part.BSplineCurve([V(-4.551282, -0.84345, 0), V(-4.550656, -0.878798, 0), V(-4.549426, -0.948153, 0), V(-4.534371, -1.049643, 0), V(-4.512902, -1.146774, 0), V(-4.479708, -1.238489, 0), V(-4.439251, -1.326292, 0), V(-4.388533, -1.408816, 0), V(-4.328971, -1.486897, 0), V(-4.260704, -1.559138, 0), V(-4.185193, -1.624692, 0), V(-4.1042, -1.683049, 0), V(-4.016933, -1.731231, 0), V(-3.924138, -1.770905, 0), V(-3.825865, -1.801463, 0), V(-3.72223, -1.824048, 0), V(-3.613075, -1.837603, 0), V(-3.538434, -1.83902, 0), V(-3.5003, -1.839744, 0)], [4, 1, 1, 1, 1, 1, 1, 1, 1, 1, 1, 1, 1, 1, 1, 1, 4], [0, 0.000105953, 0.000207884, 0.000307206, 0.000403889, 0.000499869, 0.000596786, 0.000693825, 0.000794014, 0.0008944, 0.000993427, 0.001092919, 0.001192806, 0.001295697, 0.001401176, 0.001510663, 0.001625023], False, 3, [1, 1, 1, 1, 1, 1, 1, 1, 1, 1, 1, 1, 1, 1, 1, 1, 1, 1, 1], False),
    Part.BSplineCurve([V(-4.189503, -0.040665, 0), V(-4.220403, -0.074105, 0), V(-4.279803, -0.138388, 0), V(-4.357002, -0.238007, 0), V(-4.420539, -0.335256, 0), V(-4.469692, -0.431964, 0), V(-4.506815, -0.529526, 0), V(-4.532987, -0.630336, 0), V(-4.548662, -0.735446, 0), V(-4.550402, -0.807172, 0), V(-4.551282, -0.84345, 0)], [4, 1, 1, 1, 1, 1, 1, 1, 4], [0, 0.000136539, 0.000262476, 0.000377607, 0.00048453, 0.00058727, 0.000690153, 0.000796447, 0.000905231], False, 3, [1, 1, 1, 1, 1, 1, 1, 1, 1, 1, 1], False),
    Part.BSplineCurve([V(-3.738682, 0.363181, 0), V(-3.768124, 0.337701, 0), V(-3.823998, 0.289345, 0), V(-3.903495, 0.220711, 0), V(-3.973361, 0.158962, 0), V(-4.034611, 0.105026, 0), V(-4.086319, 0.058337, 0), V(-4.1287, 0.018671, 0), V(-4.162274, -0.0132, 0), V(-4.181358, -0.03245, 0), V(-4.189503, -0.040665, 0)], [4, 1, 1, 1, 1, 1, 1, 1, 4], [0, 0.00011681, 0.000221681, 0.000315075, 0.000396532, 0.000466521, 0.000524065, 0.000570677, 0.000605381], False, 3, [1, 1, 1, 1, 1, 1, 1, 1, 1, 1, 1], False),
    Part.BSplineCurve([V(-3.263321, 0.814704, 0), V(-3.271371, 0.804542, 0), V(-3.289899, 0.781151, 0), V(-3.325228, 0.744103, 0), V(-3.369595, 0.698716, 0), V(-3.424705, 0.646551, 0), V(-3.488273, 0.585732, 0), V(-3.563243, 0.518649, 0), V(-3.647458, 0.443226, 0), V(-3.707316, 0.390703, 0), V(-3.738682, 0.363181, 0)], [4, 1, 1, 1, 1, 1, 1, 1, 4], [0, 0.000038873, 0.00008948, 0.000153436, 0.000229303, 0.000317089, 0.000417357, 0.00053107, 0.000656255], False, 3, [1, 1, 1, 1, 1, 1, 1, 1, 1, 1, 1], False),
    Part.BSplineCurve([V(-3.205128, 0.982272, 0), V(-3.205747, 0.967704, 0), V(-3.206992, 0.938366, 0), V(-3.219018, 0.895367, 0), V(-3.237146, 0.853353, 0), V(-3.254467, 0.827777, 0), V(-3.263321, 0.814704, 0)], [4, 1, 1, 1, 4], [0, 0.000043611, 0.000087826, 0.000133031, 0.000180298], False, 3, [1, 1, 1, 1, 1, 1, 1], False),
    Part.BSplineCurve([V(-3.488381, 1.211538, 0), V(-3.468443, 1.210839, 0), V(-3.429946, 1.209489, 0), V(-3.375066, 1.196069, 0), V(-3.326342, 1.172909, 0), V(-3.283823, 1.142625, 0), V(-3.250142, 1.106139, 0), V(-3.22325, 1.067876, 0), V(-3.208108, 1.025641, 0), V(-3.206115, 0.996633, 0), V(-3.205128, 0.982272, 0)], [4, 1, 1, 1, 1, 1, 1, 1, 4], [0, 0.000059744, 0.000115349, 0.000168041, 0.000220774, 0.000270869, 0.000316372, 0.00036028, 0.000403329], False, 3, [1, 1, 1, 1, 1, 1, 1, 1, 1, 1, 1], False),
    Part.BSplineCurve([V(-3.991787, 0.852564, 0), V(-3.971665, 0.880948, 0), V(-3.933033, 0.935443, 0), V(-3.870415, 1.008411, 0), V(-3.80808, 1.070659, 0), V(-3.74545, 1.121926, 0), V(-3.68197, 1.1619, 0), V(-3.61775, 1.190202, 0), V(-3.553155, 1.208194, 0), V(-3.509757, 1.210435, 0), V(-3.488381, 1.211538, 0)], [4, 1, 1, 1, 1, 1, 1, 1, 4], [0, 0.000104333, 0.000200305, 0.000288057, 0.000368319, 0.000442638, 0.000512332, 0.000578316, 0.000642364], False, 3, [1, 1, 1, 1, 1, 1, 1, 1, 1, 1, 1], False),
], False)
sketch4.addConstraint([
    Sketcher.Constraint("Block", 3),
    Sketcher.Constraint("Block", 4),
    Sketcher.Constraint("Block", 6),
    Sketcher.Constraint("Block", 7),
    Sketcher.Constraint("Block", 8),
    Sketcher.Constraint("Block", 19),
    Sketcher.Constraint("Block", 20),
    Sketcher.Constraint("Block", 23),
    Sketcher.Constraint("Block", 24),
    Sketcher.Constraint("Block", 27),
    Sketcher.Constraint("Block", 28),
    Sketcher.Constraint("Block", 29),
    Sketcher.Constraint("Block", 30),
    Sketcher.Constraint("Block", 31),
    Sketcher.Constraint("Block", 32),
    Sketcher.Constraint("Block", 34),
    Sketcher.Constraint("Block", 35),
    Sketcher.Constraint("Block", 36),
    Sketcher.Constraint("Block", 37),
    Sketcher.Constraint("Block", 38),
    Sketcher.Constraint("Block", 39),
    Sketcher.Constraint("Block", 40),
    Sketcher.Constraint("Block", 41),
    Sketcher.Constraint("Coincident", 0, 2, 1, 1),
    Sketcher.Constraint("Coincident", 1, 2, 2, 1),
    Sketcher.Constraint("Coincident", 2, 2, 3, 2),
    Sketcher.Constraint("Coincident", 4, 1, 0, 1),
    Sketcher.Constraint("Coincident", 5, 2, 6, 2),
    Sketcher.Constraint("Coincident", 8, 1, 9, 1),
    Sketcher.Constraint("Coincident", 9, 2, 10, 1),
    Sketcher.Constraint("Coincident", 10, 2, 5, 1),
    Sketcher.Constraint("Coincident", 11, 2, 12, 1),
    Sketcher.Constraint("Coincident", 12, 2, 13, 1),
    Sketcher.Constraint("Coincident", 13, 2, 14, 1),
    Sketcher.Constraint("Coincident", 14, 2, 15, 1),
    Sketcher.Constraint("Coincident", 15, 2, 16, 1),
    Sketcher.Constraint("Coincident", 16, 2, 17, 1),
    Sketcher.Constraint("Coincident", 17, 2, 18, 1),
    Sketcher.Constraint("Coincident", 18, 2, 19, 2),
    Sketcher.Constraint("Coincident", 20, 1, 11, 1),
    Sketcher.Constraint("Coincident", 21, 2, 22, 1),
    Sketcher.Constraint("Coincident", 22, 2, 23, 2),
    Sketcher.Constraint("Coincident", 24, 1, 25, 1),
    Sketcher.Constraint("Coincident", 25, 2, 21, 1),
    Sketcher.Constraint("Coincident", 26, 2, 27, 2),
    Sketcher.Constraint("Coincident", 32, 1, 33, 1),
    Sketcher.Constraint("Coincident", 33, 2, 34, 2),
    Sketcher.Constraint("Coincident", 41, 1, 26, 1),
    Sketcher.Constraint("Horizontal", 0),
    Sketcher.Constraint("Vertical", 1),
    Sketcher.Constraint("Horizontal", 2),
    Sketcher.Constraint("Horizontal", 5),
    Sketcher.Constraint("Horizontal", 9),
    Sketcher.Constraint("Vertical", 10),
    Sketcher.Constraint("Horizontal", 11),
    Sketcher.Constraint("Vertical", 12),
    Sketcher.Constraint("Horizontal", 13),
    Sketcher.Constraint("Vertical", 14),
    Sketcher.Constraint("Horizontal", 15),
    Sketcher.Constraint("Horizontal", 17),
    Sketcher.Constraint("Vertical", 21),
    Sketcher.Constraint("Horizontal", 22),
    Sketcher.Constraint("Horizontal", 25),
    Sketcher.Constraint("DistanceY", 12, 2, 12, 1, Q("3.5 mm")),
    Sketcher.Constraint("DistanceY", 16, 2, 11, 2, Q("3.5 mm")),
    Sketcher.Constraint("DistanceX", 18, 2, 14, 2, Q("0.875 mm")),
    Sketcher.Constraint("DistanceX", 18, 2, 21, 2, Q("0.875 mm")),
    Sketcher.Constraint("DistanceX", 11, 1, 11, 2, Q("0.731971 mm")),
    Sketcher.Constraint("DistanceX", 15, 2, 15, 1, Q("0.213141 mm")),
    Sketcher.Constraint("DistanceY", 14, 1, 14, 2, Q("1.525641 mm")),
    Sketcher.Constraint("Distance", 18, Q("1.789769 mm")),
    Sketcher.Constraint("DistanceX", 0, 1, 0, 2, Q("0.791567 mm")),
    Sketcher.Constraint("DistanceX", 5, 2, 5, 1, Q("0.239784 mm")),
    Sketcher.Constraint("DistanceX", 17, 2, 17, 1, Q("0.698317 mm")),
])
pocket2 = body2.newObject("PartDesign::Pocket", "Pocket001")
pocket2.Profile = sketch4
pocket2.Length = 0.4
pocket2.Reversed = True
doc.recompute()

fillet = body2.newObject("PartDesign::Fillet", "Fillet")
fillet.Base = (pocket2, edges_at(pocket2, [(-8, 0, -7)]))
fillet.Radius = 1

sketch5 = body2.newObject("Sketcher::SketchObject", "Sketch004")
sketch5.AttachmentSupport = (doc.getObject("XY_Plane001"), [""])
sketch5.MapMode = "FlatFace"
sketch5.AttachmentOffset = App.Placement(V(0, 0, -6), App.Rotation())
sketch5.addGeometry([
    Part.LineSegment(V(-1, 4.5, 0), V(-1, 3, 0)),
    Part.LineSegment(V(-1, 3, 0), V(1, 3, 0)),
    Part.LineSegment(V(1, 3, 0), V(1, 4.5, 0)),
    Part.LineSegment(V(1, 4.5, 0), V(-1, 4.5, 0)),
], False)
sketch5.addConstraint([
    Sketcher.Constraint("Coincident", 0, 2, 1, 1),
    Sketcher.Constraint("Coincident", 1, 2, 2, 1),
    Sketcher.Constraint("Coincident", 2, 2, 3, 1),
    Sketcher.Constraint("Coincident", 3, 2, 0, 1),
    Sketcher.Constraint("Vertical", 0),
    Sketcher.Constraint("Horizontal", 1),
    Sketcher.Constraint("Vertical", 2),
    Sketcher.Constraint("Horizontal", 3),
    Sketcher.Constraint("DistanceX", 1, 1, 1, 2, Q("2 mm")),
    Sketcher.Constraint("DistanceY", 0, 2, 0, 1, Q("1.5 mm")),
    Sketcher.Constraint("DistanceX", 0, 2, -1, 1, Q("1 mm")),
    Sketcher.Constraint("DistanceY", -1, 1, 0, 2, Q("3 mm")),
])
pad1 = body2.newObject("PartDesign::Pad", "Pad")
pad1.Profile = sketch5
pad1.Length = 2

doc.recompute()
